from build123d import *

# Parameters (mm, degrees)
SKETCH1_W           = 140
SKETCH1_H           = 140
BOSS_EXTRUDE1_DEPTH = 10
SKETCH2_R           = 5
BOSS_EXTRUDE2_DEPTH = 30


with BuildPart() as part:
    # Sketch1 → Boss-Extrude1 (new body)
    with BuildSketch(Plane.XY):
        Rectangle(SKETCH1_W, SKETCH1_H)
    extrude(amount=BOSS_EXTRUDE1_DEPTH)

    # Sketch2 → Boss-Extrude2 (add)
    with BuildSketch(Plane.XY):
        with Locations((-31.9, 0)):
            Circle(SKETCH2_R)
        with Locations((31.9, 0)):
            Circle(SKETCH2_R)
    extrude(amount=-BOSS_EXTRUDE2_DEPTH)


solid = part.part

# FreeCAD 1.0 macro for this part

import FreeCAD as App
import Part
import Sketcher

V = App.Vector

doc = App.newDocument("Part")
body = doc.addObject("PartDesign::Body", "Body")

# Sketch on XY plane
sketch1 = body.newObject("Sketcher::SketchObject", "Sketch")
sketch1.AttachmentSupport = (doc.getObject("XY_Plane"), [""])
sketch1.MapMode = "FlatFace"
sketch1.addGeometry([
    Part.LineSegment(V(-70, 70, 0), V(-70, -70, 0)),
    Part.LineSegment(V(-70, -70, 0), V(70, -70, 0)),
    Part.LineSegment(V(70, -70, 0), V(70, 70, 0)),
    Part.LineSegment(V(70, 70, 0), V(-70, 70, 0)),
], False)
sketch1.addConstraint([
    Sketcher.Constraint("Coincident", 0, 2, 1, 1),
    Sketcher.Constraint("Coincident", 1, 2, 2, 1),
    Sketcher.Constraint("Coincident", 2, 2, 3, 1),
    Sketcher.Constraint("Coincident", 3, 2, 0, 1),
    Sketcher.Constraint("Vertical", 0),
    Sketcher.Constraint("Horizontal", 1),
    Sketcher.Constraint("Vertical", 2),
    Sketcher.Constraint("Horizontal", 3),
    Sketcher.Constraint("Symmetric", 0, 2, 2, 2, -1, 1),
    Sketcher.Constraint("Equal", 3, 0),
    Sketcher.Constraint("DistanceX", 1, 1, 1, 2, 140.0),
])
pad1 = body.newObject("PartDesign::Pad", "Pad")
pad1.Profile = sketch1
pad1.Length = 10

# Sketch on XY plane
sketch2 = body.newObject("Sketcher::SketchObject", "Sketch001")
sketch2.AttachmentSupport = (doc.getObject("XY_Plane"), [""])
sketch2.MapMode = "FlatFace"
sketch2.addGeometry([
    Part.Circle(V(-32, 0, 0), V(0, 0, 1), 5),
    Part.Circle(V(32, 0, 0), V(0, 0, 1), 5),
], False)
sketch2.addConstraint([
    Sketcher.Constraint("Equal", 0, 1),
    Sketcher.Constraint("Symmetric", 0, 3, 1, 3, -1, 1),
    Sketcher.Constraint("PointOnObject", 0, 3, -1),
    Sketcher.Constraint("Diameter", 0, 10.0),
    Sketcher.Constraint("DistanceX", 0, 3, -1, 1, 31.9),
])
pad2 = body.newObject("PartDesign::Pad", "Pad001")
pad2.Profile = sketch2
pad2.Length = 30
pad2.Reversed = True

doc.recompute()
